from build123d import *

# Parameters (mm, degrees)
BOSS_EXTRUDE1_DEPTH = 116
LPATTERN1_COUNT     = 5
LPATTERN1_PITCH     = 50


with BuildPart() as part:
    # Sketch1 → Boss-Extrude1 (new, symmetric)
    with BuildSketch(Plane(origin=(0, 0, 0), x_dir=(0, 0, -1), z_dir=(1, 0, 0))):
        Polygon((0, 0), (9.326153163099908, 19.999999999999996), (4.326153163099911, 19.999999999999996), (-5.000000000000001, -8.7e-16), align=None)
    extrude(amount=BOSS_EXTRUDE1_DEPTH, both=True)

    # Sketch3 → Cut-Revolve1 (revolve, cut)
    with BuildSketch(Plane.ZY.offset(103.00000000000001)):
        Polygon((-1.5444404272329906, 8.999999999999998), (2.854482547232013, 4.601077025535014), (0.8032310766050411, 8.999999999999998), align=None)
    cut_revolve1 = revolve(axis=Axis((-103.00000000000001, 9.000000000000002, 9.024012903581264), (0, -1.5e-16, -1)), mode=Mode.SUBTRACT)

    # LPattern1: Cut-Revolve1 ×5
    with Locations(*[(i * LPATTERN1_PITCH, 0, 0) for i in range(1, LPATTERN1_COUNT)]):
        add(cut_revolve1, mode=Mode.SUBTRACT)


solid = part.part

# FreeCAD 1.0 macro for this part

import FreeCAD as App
import Part
import Sketcher
from FreeCAD import Vector
Q = App.Units.Quantity

doc = App.newDocument("Part")
body = doc.addObject("PartDesign::Body", "Body")

sketch1 = doc.addObject("Sketcher::SketchObject", "Sketch")
body.addObject(sketch1)
sketch1.AttachmentSupport = (doc.YZ_Plane, [""])
sketch1.MapMode = "FlatFace"
sketch1.addGeometry([
    Part.LineSegment(Vector(0, 0, 0), Vector(20, -9.326153, 0)),
    Part.LineSegment(Vector(20, -9.326153, 0), Vector(20, -4.326153, 0)),
    Part.LineSegment(Vector(20, -4.326153, 0), Vector(0, 5, 0)),
    Part.LineSegment(Vector(0, 5, 0), Vector(0, 0, 0)),
], False)
sketch1.addConstraint([
    Sketcher.Constraint("Coincident", 0, 2, 1, 1),
    Sketcher.Constraint("Coincident", 1, 2, 2, 1),
    Sketcher.Constraint("Coincident", 2, 2, 3, 1),
    Sketcher.Constraint("Coincident", 3, 2, 0, 1),
    Sketcher.Constraint("Vertical", 1),
    Sketcher.Constraint("Vertical", 3),
    Sketcher.Constraint("Coincident", 3, 2, -1, 1),
    Sketcher.Constraint("Parallel", 0, 2),
    Sketcher.Constraint("DistanceY", 1, 1, 1, 2, 5.0),
    Sketcher.Constraint("Angle", 0, Q("-25 deg")),
    Sketcher.Constraint("DistanceX", -1, 1, 0, 2, 20.0),
])
pad1 = doc.addObject("PartDesign::Pad", "Pad")
body.addObject(pad1)
pad1.Profile = sketch1
pad1.Length = 232
pad1.Midplane = True

sketch2 = doc.addObject("Sketcher::SketchObject", "Sketch001")
body.addObject(sketch2)
sketch2.AttachmentSupport = (doc.YZ_Plane, [""])
sketch2.MapMode = "FlatFace"
sketch2.AttachmentOffset = App.Placement(Vector(0, 0, -103), App.Rotation())
sketch2.addGeometry([
    Part.LineSegment(Vector(9, -1.54444, 0), Vector(4.601077, 2.854483, 0)),
    Part.LineSegment(Vector(4.601077, 2.854483, 0), Vector(9, 0.803231, 0)),
    Part.LineSegment(Vector(9, 0.803231, 0), Vector(9, -1.54444, 0)),
], False)
sketch2.addGeometry(Part.LineSegment(Vector(9, 2.854483, 0), Vector(9, -1.54444, 0)), True)
sketch2.addConstraint([
    Sketcher.Constraint("Coincident", 0, 2, 1, 1),
    Sketcher.Constraint("Coincident", 1, 2, 2, 1),
    Sketcher.Constraint("Coincident", 2, 2, 0, 1),
    Sketcher.Constraint("Vertical", 2),
    Sketcher.Constraint("Vertical", 3),
    Sketcher.Constraint("Coincident", 3, 2, 2, 2),
    Sketcher.Constraint("Horizontal", 0, 2, 3, 1),
    Sketcher.Constraint("Angle", 0, Q("135 deg")),
    Sketcher.Constraint("Angle", 1, Q("-25 deg")),
    Sketcher.Constraint("DistanceX", -1, 1, 1, 2, 9.0),
    Sketcher.Constraint("DistanceY", 2, 2, 2, 1, 2.347672),
    Sketcher.Constraint("DistanceY", -1, 1, 1, 2, 0.803231),
])
groove = doc.addObject("PartDesign::Groove", "Groove")
body.addObject(groove)
groove.Profile = sketch2
groove.ReferenceAxis = (sketch2, ["Axis0"])
groove.Angle = 360
doc.recompute()

linearpattern = doc.addObject("PartDesign::LinearPattern", "LinearPattern")
body.addObject(linearpattern)
linearpattern.Originals = [groove]
linearpattern.Direction = (doc.X_Axis, [""])
linearpattern.Mode = "offset"
linearpattern.Offset = 50
linearpattern.Occurrences = 5
body.Tip = linearpattern

doc.recompute()
